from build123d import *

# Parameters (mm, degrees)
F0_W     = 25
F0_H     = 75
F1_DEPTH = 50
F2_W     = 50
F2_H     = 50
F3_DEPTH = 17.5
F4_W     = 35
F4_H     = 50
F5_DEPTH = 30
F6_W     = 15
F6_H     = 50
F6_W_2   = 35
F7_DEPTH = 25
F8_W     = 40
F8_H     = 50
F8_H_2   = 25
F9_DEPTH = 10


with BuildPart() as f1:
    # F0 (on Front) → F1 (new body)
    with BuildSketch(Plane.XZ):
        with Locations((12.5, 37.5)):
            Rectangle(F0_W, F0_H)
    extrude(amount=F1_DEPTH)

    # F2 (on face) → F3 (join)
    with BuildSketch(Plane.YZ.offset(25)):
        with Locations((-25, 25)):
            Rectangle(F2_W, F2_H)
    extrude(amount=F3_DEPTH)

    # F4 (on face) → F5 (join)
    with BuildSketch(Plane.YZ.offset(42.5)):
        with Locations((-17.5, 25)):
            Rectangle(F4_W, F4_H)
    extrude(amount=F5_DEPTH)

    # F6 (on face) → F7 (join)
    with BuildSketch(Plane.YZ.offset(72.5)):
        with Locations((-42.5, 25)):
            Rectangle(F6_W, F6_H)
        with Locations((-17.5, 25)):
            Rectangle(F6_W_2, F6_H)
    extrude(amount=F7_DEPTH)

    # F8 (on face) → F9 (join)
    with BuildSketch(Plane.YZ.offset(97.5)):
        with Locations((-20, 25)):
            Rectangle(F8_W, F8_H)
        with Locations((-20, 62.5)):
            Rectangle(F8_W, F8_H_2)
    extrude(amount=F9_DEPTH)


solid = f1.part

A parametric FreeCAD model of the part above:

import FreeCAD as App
import Part
import Sketcher


def add_polygon(sketch, points):
    """Adds a closed chain of lines whose ends are joined by coincident constraints."""
    first, n = sketch.GeometryCount, len(points)
    for a, b in zip(points, points[1:] + points[:1]):
        sketch.addGeometry(Part.LineSegment(App.Vector(*a, 0), App.Vector(*b, 0)), False)
    for i in range(n):
        sketch.addConstraint(Sketcher.Constraint("Coincident", first + i, 2, first + (i + 1) % n, 1))

doc = App.newDocument("Part")
params = doc.addObject("Spreadsheet::Sheet", "Params")
for row, (alias, value) in enumerate([
    ("sketch1_width", "25 mm"),
    ("sketch1_height", "75 mm"),
    ("pad1_length", "50 mm"),
    ("sketch2_width", "50 mm"),
    ("pad2_length", "17.5 mm"),
    ("sketch3_width", "35 mm"),
    ("sketch3_height", "50 mm"),
    ("pad3_length", "30 mm"),
    ("sketch4_width", "50 mm"),
    ("pad4_length", "25 mm"),
    ("sketch5_width", "40 mm"),
    ("sketch5_height", "75 mm"),
    ("pad5_length", "10 mm"),
], start=1):
    params.set(f"A{row}", alias)
    params.set(f"B{row}", "=" + value)
    params.setAlias(f"B{row}", alias)

body = doc.addObject("PartDesign::Body", "Body")

sketch1 = body.newObject("Sketcher::SketchObject", "Sketch")
sketch1.AttachmentSupport = (doc.getObject("XZ_Plane"), [""])
sketch1.MapMode = "FlatFace"
add_polygon(sketch1, [(0, 75), (0, 0), (25, 0), (25, 75)])
sketch1.addConstraint([
    Sketcher.Constraint("Vertical", 0),
    Sketcher.Constraint("Horizontal", 1),
    Sketcher.Constraint("Vertical", 2),
    Sketcher.Constraint("Horizontal", 3),
    Sketcher.Constraint("Coincident", 0, 2, -1, 1),
    Sketcher.Constraint("DistanceX", 1, 1, 1, 2, 25.0),
    Sketcher.Constraint("DistanceY", 0, 2, 0, 1, 75.0),
])
sketch1.setExpression("Constraints[9]", "Params.sketch1_width")
sketch1.setExpression("Constraints[10]", "Params.sketch1_height")
pad1 = body.newObject("PartDesign::Pad", "Pad")
pad1.Profile = sketch1
pad1.setExpression("Length", "Params.pad1_length")

sketch2 = body.newObject("Sketcher::SketchObject", "Sketch001")
sketch2.AttachmentSupport = (doc.getObject("YZ_Plane"), [""])
sketch2.MapMode = "FlatFace"
sketch2.AttachmentOffset = App.Placement(App.Vector(0, 0, 25), App.Rotation())
add_polygon(sketch2, [(-50, 50), (-50, 0), (0, 0), (0, 50)])
sketch2.addConstraint([
    Sketcher.Constraint("Vertical", 0),
    Sketcher.Constraint("Horizontal", 1),
    Sketcher.Constraint("Vertical", 2),
    Sketcher.Constraint("Horizontal", 3),
    Sketcher.Constraint("Coincident", 1, 2, -1, 1),
    Sketcher.Constraint("Equal", 3, 0),
    Sketcher.Constraint("DistanceX", 1, 1, 1, 2, 50.0),
])
sketch2.setExpression("Constraints[10]", "Params.sketch2_width")
pad2 = body.newObject("PartDesign::Pad", "Pad001")
pad2.Profile = sketch2
pad2.setExpression("Length", "Params.pad2_length")

sketch3 = body.newObject("Sketcher::SketchObject", "Sketch002")
sketch3.AttachmentSupport = (doc.getObject("YZ_Plane"), [""])
sketch3.MapMode = "FlatFace"
sketch3.AttachmentOffset = App.Placement(App.Vector(0, 0, 42.5), App.Rotation())
add_polygon(sketch3, [(-35, 50), (-35, 0), (0, 0), (0, 50)])
sketch3.addConstraint([
    Sketcher.Constraint("Vertical", 0),
    Sketcher.Constraint("Horizontal", 1),
    Sketcher.Constraint("Vertical", 2),
    Sketcher.Constraint("Horizontal", 3),
    Sketcher.Constraint("Coincident", 1, 2, -1, 1),
    Sketcher.Constraint("DistanceX", 1, 1, 1, 2, 35.0),
    Sketcher.Constraint("DistanceY", 0, 2, 0, 1, 50.0),
])
sketch3.setExpression("Constraints[9]", "Params.sketch3_width")
sketch3.setExpression("Constraints[10]", "Params.sketch3_height")
pad3 = body.newObject("PartDesign::Pad", "Pad002")
pad3.Profile = sketch3
pad3.setExpression("Length", "Params.pad3_length")

sketch4 = body.newObject("Sketcher::SketchObject", "Sketch003")
sketch4.AttachmentSupport = (doc.getObject("YZ_Plane"), [""])
sketch4.MapMode = "FlatFace"
sketch4.AttachmentOffset = App.Placement(App.Vector(0, 0, 72.5), App.Rotation())
add_polygon(sketch4, [(-50, 50), (-50, 0), (0, 0), (0, 50)])
sketch4.addConstraint([
    Sketcher.Constraint("Vertical", 0),
    Sketcher.Constraint("Horizontal", 1),
    Sketcher.Constraint("Vertical", 2),
    Sketcher.Constraint("Horizontal", 3),
    Sketcher.Constraint("Coincident", 1, 2, -1, 1),
    Sketcher.Constraint("Equal", 3, 0),
    Sketcher.Constraint("DistanceX", 1, 1, 1, 2, 50.0),
])
sketch4.setExpression("Constraints[10]", "Params.sketch4_width")
pad4 = body.newObject("PartDesign::Pad", "Pad003")
pad4.Profile = sketch4
pad4.setExpression("Length", "Params.pad4_length")

sketch5 = body.newObject("Sketcher::SketchObject", "Sketch004")
sketch5.AttachmentSupport = (doc.getObject("YZ_Plane"), [""])
sketch5.MapMode = "FlatFace"
sketch5.AttachmentOffset = App.Placement(App.Vector(0, 0, 97.5), App.Rotation())
add_polygon(sketch5, [(-40, 0), (0, 0), (0, 75), (-40, 75)])
sketch5.addConstraint([
    Sketcher.Constraint("Horizontal", 0),
    Sketcher.Constraint("Vertical", 1),
    Sketcher.Constraint("Horizontal", 2),
    Sketcher.Constraint("Vertical", 3),
    Sketcher.Constraint("Coincident", 0, 2, -1, 1),
    Sketcher.Constraint("DistanceX", 0, 1, 0, 2, 40.0),
    Sketcher.Constraint("DistanceY", 1, 1, 1, 2, 75.0),
])
sketch5.setExpression("Constraints[9]", "Params.sketch5_width")
sketch5.setExpression("Constraints[10]", "Params.sketch5_height")
pad5 = body.newObject("PartDesign::Pad", "Pad004")
pad5.Profile = sketch5
pad5.setExpression("Length", "Params.pad5_length")

doc.recompute()
